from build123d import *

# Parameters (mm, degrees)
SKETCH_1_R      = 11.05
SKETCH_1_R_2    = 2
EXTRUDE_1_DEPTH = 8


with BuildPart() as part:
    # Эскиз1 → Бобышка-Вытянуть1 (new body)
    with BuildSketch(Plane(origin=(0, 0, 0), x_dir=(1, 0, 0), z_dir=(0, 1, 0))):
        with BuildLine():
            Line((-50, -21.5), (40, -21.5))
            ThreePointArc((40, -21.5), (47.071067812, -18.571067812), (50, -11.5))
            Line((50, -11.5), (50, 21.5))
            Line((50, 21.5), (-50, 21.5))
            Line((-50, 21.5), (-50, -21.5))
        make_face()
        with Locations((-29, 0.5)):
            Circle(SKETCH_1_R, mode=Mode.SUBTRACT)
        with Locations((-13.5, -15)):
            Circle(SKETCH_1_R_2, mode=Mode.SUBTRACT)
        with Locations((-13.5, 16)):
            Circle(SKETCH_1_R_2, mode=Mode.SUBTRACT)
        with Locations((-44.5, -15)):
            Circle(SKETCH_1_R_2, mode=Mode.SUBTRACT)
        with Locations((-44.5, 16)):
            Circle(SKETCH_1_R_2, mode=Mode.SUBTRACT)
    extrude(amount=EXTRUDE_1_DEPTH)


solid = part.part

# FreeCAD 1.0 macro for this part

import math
import FreeCAD as App
import Part
import Sketcher
Q = App.Units.Quantity

doc = App.newDocument("Part")
body = doc.addObject("PartDesign::Body", "Body")

# Sketch on XZ plane
sketch1 = doc.addObject("Sketcher::SketchObject", "Sketch")
body.addObject(sketch1)
sketch1.AttachmentSupport = (doc.XZ_Plane, [""])
sketch1.MapMode = "FlatFace"
sketch1.addGeometry([
    Part.LineSegment(App.Vector(-50, 21.5, 0), App.Vector(40, 21.5, 0)),  # 0
    Part.ArcOfCircle(Part.Circle(App.Vector(40, 11.5, 0), App.Vector(0, 0, 1), 10), math.radians(0), math.radians(90)),  # 1
    Part.LineSegment(App.Vector(50, 11.5, 0), App.Vector(50, -21.5, 0)),  # 2
    Part.LineSegment(App.Vector(50, -21.5, 0), App.Vector(-50, -21.5, 0)),  # 3
    Part.LineSegment(App.Vector(-50, -21.5, 0), App.Vector(-50, 21.5, 0)),  # 4
    Part.Circle(App.Vector(-44.5, 15, 0), App.Vector(0, 0, 1), 2),  # 5
    Part.Circle(App.Vector(-13.5, 15, 0), App.Vector(0, 0, 1), 2),  # 6
    Part.Circle(App.Vector(-44.5, -16, 0), App.Vector(0, 0, 1), 2),  # 7
    Part.Circle(App.Vector(-29, -0.5, 0), App.Vector(0, 0, 1), 11.1),  # 8
    Part.Circle(App.Vector(-13.5, -16, 0), App.Vector(0, 0, 1), 2),  # 9
], False)
sketch1.addConstraint([
    Sketcher.Constraint("Tangent", 0, 2, 1, 2),
    Sketcher.Constraint("Tangent", 1, 1, 2, 1),
    Sketcher.Constraint("Coincident", 2, 2, 3, 1),
    Sketcher.Constraint("Coincident", 3, 2, 4, 1),
    Sketcher.Constraint("Coincident", 4, 2, 0, 1),
    Sketcher.Constraint("Horizontal", 0),
    Sketcher.Constraint("Vertical", 2),
    Sketcher.Constraint("Horizontal", 3),
    Sketcher.Constraint("Vertical", 4),
    Sketcher.Constraint("Equal", 5, 6),
    Sketcher.Constraint("Equal", 6, 7),
    Sketcher.Constraint("Equal", 7, 9),
    Sketcher.Constraint("Symmetric", 2, 2, 4, 2, -1, 1),
    Sketcher.Constraint("Horizontal", 5, 3, 6, 3),
    Sketcher.Constraint("Horizontal", 7, 3, 9, 3),
    Sketcher.Constraint("Vertical", 5, 3, 7, 3),
    Sketcher.Constraint("Vertical", 6, 3, 9, 3),
    Sketcher.Constraint("Diameter", 5, Q("4 mm")),
    Sketcher.Constraint("Radius", 1, Q("10 mm")),
    Sketcher.Constraint("Diameter", 8, Q("22.1 mm")),
    Sketcher.Constraint("DistanceX", 0, 1, 0, 2, Q("90 mm")),
    Sketcher.Constraint("DistanceY", 2, 2, 2, 1, Q("33 mm")),
    Sketcher.Constraint("DistanceY", -1, 1, 5, 3, Q("15 mm")),
    Sketcher.Constraint("DistanceY", 7, 3, -1, 1, Q("16 mm")),
    Sketcher.Constraint("DistanceX", 8, 3, -1, 1, Q("29 mm")),
    Sketcher.Constraint("DistanceX", 5, 3, 6, 3, Q("31 mm")),
    Sketcher.Constraint("DistanceY", 8, 3, 1, 3, Q("12 mm")),
    Sketcher.Constraint("DistanceX", 5, 3, -1, 1, Q("44.5 mm")),
])
pad1 = doc.addObject("PartDesign::Pad", "Pad")
body.addObject(pad1)
pad1.Profile = sketch1
pad1.Length = 8
pad1.Reversed = True

doc.recompute()
